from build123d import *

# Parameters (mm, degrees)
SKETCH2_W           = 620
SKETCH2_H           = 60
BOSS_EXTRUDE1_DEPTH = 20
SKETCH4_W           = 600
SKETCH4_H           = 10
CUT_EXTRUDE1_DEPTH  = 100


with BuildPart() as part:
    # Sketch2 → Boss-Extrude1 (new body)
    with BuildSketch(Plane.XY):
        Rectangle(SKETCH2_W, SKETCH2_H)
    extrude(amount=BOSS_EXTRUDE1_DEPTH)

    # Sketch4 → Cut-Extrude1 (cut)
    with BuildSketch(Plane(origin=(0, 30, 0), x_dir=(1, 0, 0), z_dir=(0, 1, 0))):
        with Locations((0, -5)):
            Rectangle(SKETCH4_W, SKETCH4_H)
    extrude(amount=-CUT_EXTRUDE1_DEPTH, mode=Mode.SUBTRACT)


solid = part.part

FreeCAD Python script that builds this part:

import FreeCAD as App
import Part
import Sketcher
Q = App.Units.Quantity

doc = App.newDocument("Part")
body = doc.addObject("PartDesign::Body", "Body")

sketch1 = doc.addObject("Sketcher::SketchObject", "Sketch")
body.addObject(sketch1)
sketch1.AttachmentSupport = (doc.XY_Plane, [""])
sketch1.MapMode = "FlatFace"
sketch1.addGeometry(Part.LineSegment(App.Vector(-310, 30, 0), App.Vector(-310, -30, 0)), False)
sketch1.addGeometry(Part.LineSegment(App.Vector(-310, -30, 0), App.Vector(310, -30, 0)), False)
sketch1.addGeometry(Part.LineSegment(App.Vector(310, -30, 0), App.Vector(310, 30, 0)), False)
sketch1.addGeometry(Part.LineSegment(App.Vector(310, 30, 0), App.Vector(-310, 30, 0)), False)
sketch1.addConstraint(Sketcher.Constraint("Coincident", 0, 2, 1, 1))
sketch1.addConstraint(Sketcher.Constraint("Coincident", 1, 2, 2, 1))
sketch1.addConstraint(Sketcher.Constraint("Coincident", 2, 2, 3, 1))
sketch1.addConstraint(Sketcher.Constraint("Coincident", 3, 2, 0, 1))
sketch1.addConstraint(Sketcher.Constraint("Vertical", 0))
sketch1.addConstraint(Sketcher.Constraint("Horizontal", 1))
sketch1.addConstraint(Sketcher.Constraint("Vertical", 2))
sketch1.addConstraint(Sketcher.Constraint("Horizontal", 3))
sketch1.addConstraint(Sketcher.Constraint("Symmetric", 0, 2, 2, 2, -1, 1))
sketch1.addConstraint(Sketcher.Constraint("DistanceX", 1, 1, 1, 2, Q("620 mm")))
sketch1.addConstraint(Sketcher.Constraint("DistanceY", 0, 2, 0, 1, Q("60 mm")))
pad1 = doc.addObject("PartDesign::Pad", "Pad")
body.addObject(pad1)
pad1.Profile = sketch1
pad1.Length = 20

sketch2 = doc.addObject("Sketcher::SketchObject", "Sketch001")
body.addObject(sketch2)
sketch2.AttachmentSupport = (doc.XZ_Plane, [""])
sketch2.MapMode = "FlatFace"
sketch2.AttachmentOffset = App.Placement(App.Vector(0, 0, -30), App.Rotation())
sketch2.addGeometry(Part.LineSegment(App.Vector(-300, 0, 0), App.Vector(-300, 10, 0)), False)
sketch2.addGeometry(Part.LineSegment(App.Vector(-300, 10, 0), App.Vector(300, 10, 0)), False)
sketch2.addGeometry(Part.LineSegment(App.Vector(300, 10, 0), App.Vector(300, 0, 0)), False)
sketch2.addGeometry(Part.LineSegment(App.Vector(300, 0, 0), App.Vector(-300, 0, 0)), False)
sketch2.addConstraint(Sketcher.Constraint("Coincident", 0, 2, 1, 1))
sketch2.addConstraint(Sketcher.Constraint("Coincident", 1, 2, 2, 1))
sketch2.addConstraint(Sketcher.Constraint("Coincident", 2, 2, 3, 1))
sketch2.addConstraint(Sketcher.Constraint("Coincident", 3, 2, 0, 1))
sketch2.addConstraint(Sketcher.Constraint("Vertical", 0))
sketch2.addConstraint(Sketcher.Constraint("Horizontal", 1))
sketch2.addConstraint(Sketcher.Constraint("Vertical", 2))
sketch2.addConstraint(Sketcher.Constraint("Horizontal", 3))
sketch2.addConstraint(Sketcher.Constraint("Symmetric", 2, 2, 3, 2, -1, 1))
sketch2.addConstraint(Sketcher.Constraint("DistanceX", 1, 1, 1, 2, Q("600 mm")))
sketch2.addConstraint(Sketcher.Constraint("DistanceY", 0, 1, 0, 2, Q("10 mm")))
pocket1 = doc.addObject("PartDesign::Pocket", "Pocket")
body.addObject(pocket1)
pocket1.Profile = sketch2
pocket1.Length = 100
pocket1.Reversed = True

doc.recompute()
